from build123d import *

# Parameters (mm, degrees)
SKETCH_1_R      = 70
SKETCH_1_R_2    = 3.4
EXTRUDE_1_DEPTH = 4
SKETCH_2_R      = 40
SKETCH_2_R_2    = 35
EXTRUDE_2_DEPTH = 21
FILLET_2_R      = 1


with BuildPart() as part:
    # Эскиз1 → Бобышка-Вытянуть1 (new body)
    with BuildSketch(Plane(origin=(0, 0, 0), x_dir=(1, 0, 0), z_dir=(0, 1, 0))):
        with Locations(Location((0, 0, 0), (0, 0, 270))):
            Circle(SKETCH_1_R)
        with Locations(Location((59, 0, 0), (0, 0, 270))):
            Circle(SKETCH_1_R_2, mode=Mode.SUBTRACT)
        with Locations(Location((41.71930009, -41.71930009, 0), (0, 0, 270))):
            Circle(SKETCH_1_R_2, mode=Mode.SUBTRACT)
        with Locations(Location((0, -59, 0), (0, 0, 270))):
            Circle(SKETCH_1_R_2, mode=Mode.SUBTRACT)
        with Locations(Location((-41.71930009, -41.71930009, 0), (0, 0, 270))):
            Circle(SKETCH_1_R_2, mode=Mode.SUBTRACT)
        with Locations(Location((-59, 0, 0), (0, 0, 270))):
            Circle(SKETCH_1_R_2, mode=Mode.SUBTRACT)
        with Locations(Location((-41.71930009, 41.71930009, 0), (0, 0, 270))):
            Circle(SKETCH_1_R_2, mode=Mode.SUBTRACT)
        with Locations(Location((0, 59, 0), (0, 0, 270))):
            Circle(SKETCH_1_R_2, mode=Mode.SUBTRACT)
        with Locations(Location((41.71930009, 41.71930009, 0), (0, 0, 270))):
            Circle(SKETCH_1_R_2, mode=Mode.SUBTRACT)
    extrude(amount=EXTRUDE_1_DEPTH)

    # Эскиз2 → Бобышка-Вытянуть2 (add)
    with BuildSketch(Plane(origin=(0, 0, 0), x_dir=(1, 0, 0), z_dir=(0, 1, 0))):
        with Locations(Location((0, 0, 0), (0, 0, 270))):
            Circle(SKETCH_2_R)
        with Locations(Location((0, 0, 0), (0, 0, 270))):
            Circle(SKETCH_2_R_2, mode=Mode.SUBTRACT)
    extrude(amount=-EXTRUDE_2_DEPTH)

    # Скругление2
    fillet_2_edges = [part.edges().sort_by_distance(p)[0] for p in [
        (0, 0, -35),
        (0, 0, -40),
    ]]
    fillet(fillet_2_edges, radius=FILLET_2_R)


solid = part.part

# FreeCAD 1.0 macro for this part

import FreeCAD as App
import Part
import Sketcher

V = App.Vector


def edges_at(feature, points):
    """Names of the edges that pass closest to the given points."""
    edges = feature.Shape.Edges
    near = lambda p: min(range(len(edges)), key=lambda i: edges[i].distToShape(Part.Vertex(*p))[0])
    return sorted({f"Edge{near(p) + 1}" for p in points})

doc = App.newDocument("Part")
params = doc.addObject("Spreadsheet::Sheet", "Params")
for row, (alias, value) in enumerate([
    ("sketch1_diameter", "140 mm"),
    ("sketch1_diameter2", "6.8 mm"),
    ("pad1_length", "4 mm"),
    ("sketch2_diameter", "80 mm"),
    ("sketch2_diameter2", "70 mm"),
    ("pad2_length", "21 mm"),
    ("fillet_radius", "1 mm"),
], start=1):
    params.set(f"A{row}", alias)
    params.set(f"B{row}", "=" + value)
    params.setAlias(f"B{row}", alias)

body = doc.addObject("PartDesign::Body", "Body")

sketch1 = doc.addObject("Sketcher::SketchObject", "Sketch")
body.addObject(sketch1)
sketch1.AttachmentSupport = (doc.XZ_Plane, [""])
sketch1.MapMode = "FlatFace"
sketch1.addGeometry(Part.Circle(V(0, 0, 0), V(0, 0, 1), 70), False)
sketch1.addGeometry(Part.Circle(V(-41.7, -41.7, 0), V(0, 0, 1), 3.4), False)
sketch1.addGeometry(Part.Circle(V(-59, 0, 0), V(0, 0, 1), 3.4), False)
sketch1.addGeometry(Part.Circle(V(-41.7, 41.7, 0), V(0, 0, 1), 3.4), False)
sketch1.addGeometry(Part.Circle(V(0, -59, 0), V(0, 0, 1), 3.4), False)
sketch1.addGeometry(Part.Circle(V(41.7, -41.7, 0), V(0, 0, 1), 3.4), False)
sketch1.addGeometry(Part.Circle(V(0, 59, 0), V(0, 0, 1), 3.4), False)
sketch1.addGeometry(Part.Circle(V(59, 0, 0), V(0, 0, 1), 3.4), False)
sketch1.addGeometry(Part.Circle(V(41.7, 41.7, 0), V(0, 0, 1), 3.4), False)
sketch1.addConstraint(Sketcher.Constraint("Coincident", 0, 3, -1, 1))
sketch1.addConstraint(Sketcher.Constraint("Equal", 1, 2))
sketch1.addConstraint(Sketcher.Constraint("Equal", 2, 3))
sketch1.addConstraint(Sketcher.Constraint("Equal", 3, 4))
sketch1.addConstraint(Sketcher.Constraint("Equal", 4, 5))
sketch1.addConstraint(Sketcher.Constraint("Equal", 5, 6))
sketch1.addConstraint(Sketcher.Constraint("Equal", 6, 7))
sketch1.addConstraint(Sketcher.Constraint("Equal", 7, 8))
sketch1.addConstraint(Sketcher.Constraint("Symmetric", 3, 3, 5, 3, -1, 1))
sketch1.addConstraint(Sketcher.Constraint("Symmetric", 4, 3, 6, 3, -1, 1))
sketch1.addConstraint(Sketcher.Constraint("Symmetric", 2, 3, 7, 3, -1, 1))
sketch1.addConstraint(Sketcher.Constraint("Symmetric", 1, 3, 8, 3, -1, 1))
sketch1.addConstraint(Sketcher.Constraint("Symmetric", 1, 3, 5, 3, -2))
sketch1.addConstraint(Sketcher.Constraint("PointOnObject", 2, 3, -1))
sketch1.addConstraint(Sketcher.Constraint("PointOnObject", 4, 3, -2))
sketch1.addConstraint(Sketcher.Constraint("Diameter", 0, 140.0))
sketch1.addConstraint(Sketcher.Constraint("Diameter", 1, 6.8))
sketch1.addConstraint(Sketcher.Constraint("DistanceX", 2, 3, -1, 1, 59.0))
sketch1.addConstraint(Sketcher.Constraint("DistanceY", 4, 3, -1, 1, 59.0))
sketch1.addConstraint(Sketcher.Constraint("DistanceX", 1, 3, -1, 1, 41.7193))
sketch1.addConstraint(Sketcher.Constraint("DistanceY", 1, 3, -1, 1, 41.7193))
sketch1.setExpression("Constraints[15]", "Params.sketch1_diameter")
sketch1.setExpression("Constraints[16]", "Params.sketch1_diameter2")
pad1 = doc.addObject("PartDesign::Pad", "Pad")
body.addObject(pad1)
pad1.Profile = sketch1
pad1.setExpression("Length", "Params.pad1_length")
pad1.Reversed = True

sketch2 = doc.addObject("Sketcher::SketchObject", "Sketch001")
body.addObject(sketch2)
sketch2.AttachmentSupport = (doc.XZ_Plane, [""])
sketch2.MapMode = "FlatFace"
sketch2.addGeometry(Part.Circle(V(0, 0, 0), V(0, 0, 1), 40), False)
sketch2.addGeometry(Part.Circle(V(0, 0, 0), V(0, 0, 1), 35), False)
sketch2.addConstraint(Sketcher.Constraint("Coincident", 0, 3, -1, 1))
sketch2.addConstraint(Sketcher.Constraint("Coincident", 1, 3, -1, 1))
sketch2.addConstraint(Sketcher.Constraint("Diameter", 0, 80.0))
sketch2.addConstraint(Sketcher.Constraint("Diameter", 1, 70.0))
sketch2.setExpression("Constraints[2]", "Params.sketch2_diameter")
sketch2.setExpression("Constraints[3]", "Params.sketch2_diameter2")
pad2 = doc.addObject("PartDesign::Pad", "Pad001")
body.addObject(pad2)
pad2.Profile = sketch2
pad2.setExpression("Length", "Params.pad2_length")
doc.recompute()

fillet = doc.addObject("PartDesign::Fillet", "Fillet")
body.addObject(fillet)
fillet.Base = (pad2, edges_at(pad2, [(0, 0, -35), (0, 0, -40)]))
fillet.setExpression("Radius", "Params.fillet_radius")

doc.recompute()
